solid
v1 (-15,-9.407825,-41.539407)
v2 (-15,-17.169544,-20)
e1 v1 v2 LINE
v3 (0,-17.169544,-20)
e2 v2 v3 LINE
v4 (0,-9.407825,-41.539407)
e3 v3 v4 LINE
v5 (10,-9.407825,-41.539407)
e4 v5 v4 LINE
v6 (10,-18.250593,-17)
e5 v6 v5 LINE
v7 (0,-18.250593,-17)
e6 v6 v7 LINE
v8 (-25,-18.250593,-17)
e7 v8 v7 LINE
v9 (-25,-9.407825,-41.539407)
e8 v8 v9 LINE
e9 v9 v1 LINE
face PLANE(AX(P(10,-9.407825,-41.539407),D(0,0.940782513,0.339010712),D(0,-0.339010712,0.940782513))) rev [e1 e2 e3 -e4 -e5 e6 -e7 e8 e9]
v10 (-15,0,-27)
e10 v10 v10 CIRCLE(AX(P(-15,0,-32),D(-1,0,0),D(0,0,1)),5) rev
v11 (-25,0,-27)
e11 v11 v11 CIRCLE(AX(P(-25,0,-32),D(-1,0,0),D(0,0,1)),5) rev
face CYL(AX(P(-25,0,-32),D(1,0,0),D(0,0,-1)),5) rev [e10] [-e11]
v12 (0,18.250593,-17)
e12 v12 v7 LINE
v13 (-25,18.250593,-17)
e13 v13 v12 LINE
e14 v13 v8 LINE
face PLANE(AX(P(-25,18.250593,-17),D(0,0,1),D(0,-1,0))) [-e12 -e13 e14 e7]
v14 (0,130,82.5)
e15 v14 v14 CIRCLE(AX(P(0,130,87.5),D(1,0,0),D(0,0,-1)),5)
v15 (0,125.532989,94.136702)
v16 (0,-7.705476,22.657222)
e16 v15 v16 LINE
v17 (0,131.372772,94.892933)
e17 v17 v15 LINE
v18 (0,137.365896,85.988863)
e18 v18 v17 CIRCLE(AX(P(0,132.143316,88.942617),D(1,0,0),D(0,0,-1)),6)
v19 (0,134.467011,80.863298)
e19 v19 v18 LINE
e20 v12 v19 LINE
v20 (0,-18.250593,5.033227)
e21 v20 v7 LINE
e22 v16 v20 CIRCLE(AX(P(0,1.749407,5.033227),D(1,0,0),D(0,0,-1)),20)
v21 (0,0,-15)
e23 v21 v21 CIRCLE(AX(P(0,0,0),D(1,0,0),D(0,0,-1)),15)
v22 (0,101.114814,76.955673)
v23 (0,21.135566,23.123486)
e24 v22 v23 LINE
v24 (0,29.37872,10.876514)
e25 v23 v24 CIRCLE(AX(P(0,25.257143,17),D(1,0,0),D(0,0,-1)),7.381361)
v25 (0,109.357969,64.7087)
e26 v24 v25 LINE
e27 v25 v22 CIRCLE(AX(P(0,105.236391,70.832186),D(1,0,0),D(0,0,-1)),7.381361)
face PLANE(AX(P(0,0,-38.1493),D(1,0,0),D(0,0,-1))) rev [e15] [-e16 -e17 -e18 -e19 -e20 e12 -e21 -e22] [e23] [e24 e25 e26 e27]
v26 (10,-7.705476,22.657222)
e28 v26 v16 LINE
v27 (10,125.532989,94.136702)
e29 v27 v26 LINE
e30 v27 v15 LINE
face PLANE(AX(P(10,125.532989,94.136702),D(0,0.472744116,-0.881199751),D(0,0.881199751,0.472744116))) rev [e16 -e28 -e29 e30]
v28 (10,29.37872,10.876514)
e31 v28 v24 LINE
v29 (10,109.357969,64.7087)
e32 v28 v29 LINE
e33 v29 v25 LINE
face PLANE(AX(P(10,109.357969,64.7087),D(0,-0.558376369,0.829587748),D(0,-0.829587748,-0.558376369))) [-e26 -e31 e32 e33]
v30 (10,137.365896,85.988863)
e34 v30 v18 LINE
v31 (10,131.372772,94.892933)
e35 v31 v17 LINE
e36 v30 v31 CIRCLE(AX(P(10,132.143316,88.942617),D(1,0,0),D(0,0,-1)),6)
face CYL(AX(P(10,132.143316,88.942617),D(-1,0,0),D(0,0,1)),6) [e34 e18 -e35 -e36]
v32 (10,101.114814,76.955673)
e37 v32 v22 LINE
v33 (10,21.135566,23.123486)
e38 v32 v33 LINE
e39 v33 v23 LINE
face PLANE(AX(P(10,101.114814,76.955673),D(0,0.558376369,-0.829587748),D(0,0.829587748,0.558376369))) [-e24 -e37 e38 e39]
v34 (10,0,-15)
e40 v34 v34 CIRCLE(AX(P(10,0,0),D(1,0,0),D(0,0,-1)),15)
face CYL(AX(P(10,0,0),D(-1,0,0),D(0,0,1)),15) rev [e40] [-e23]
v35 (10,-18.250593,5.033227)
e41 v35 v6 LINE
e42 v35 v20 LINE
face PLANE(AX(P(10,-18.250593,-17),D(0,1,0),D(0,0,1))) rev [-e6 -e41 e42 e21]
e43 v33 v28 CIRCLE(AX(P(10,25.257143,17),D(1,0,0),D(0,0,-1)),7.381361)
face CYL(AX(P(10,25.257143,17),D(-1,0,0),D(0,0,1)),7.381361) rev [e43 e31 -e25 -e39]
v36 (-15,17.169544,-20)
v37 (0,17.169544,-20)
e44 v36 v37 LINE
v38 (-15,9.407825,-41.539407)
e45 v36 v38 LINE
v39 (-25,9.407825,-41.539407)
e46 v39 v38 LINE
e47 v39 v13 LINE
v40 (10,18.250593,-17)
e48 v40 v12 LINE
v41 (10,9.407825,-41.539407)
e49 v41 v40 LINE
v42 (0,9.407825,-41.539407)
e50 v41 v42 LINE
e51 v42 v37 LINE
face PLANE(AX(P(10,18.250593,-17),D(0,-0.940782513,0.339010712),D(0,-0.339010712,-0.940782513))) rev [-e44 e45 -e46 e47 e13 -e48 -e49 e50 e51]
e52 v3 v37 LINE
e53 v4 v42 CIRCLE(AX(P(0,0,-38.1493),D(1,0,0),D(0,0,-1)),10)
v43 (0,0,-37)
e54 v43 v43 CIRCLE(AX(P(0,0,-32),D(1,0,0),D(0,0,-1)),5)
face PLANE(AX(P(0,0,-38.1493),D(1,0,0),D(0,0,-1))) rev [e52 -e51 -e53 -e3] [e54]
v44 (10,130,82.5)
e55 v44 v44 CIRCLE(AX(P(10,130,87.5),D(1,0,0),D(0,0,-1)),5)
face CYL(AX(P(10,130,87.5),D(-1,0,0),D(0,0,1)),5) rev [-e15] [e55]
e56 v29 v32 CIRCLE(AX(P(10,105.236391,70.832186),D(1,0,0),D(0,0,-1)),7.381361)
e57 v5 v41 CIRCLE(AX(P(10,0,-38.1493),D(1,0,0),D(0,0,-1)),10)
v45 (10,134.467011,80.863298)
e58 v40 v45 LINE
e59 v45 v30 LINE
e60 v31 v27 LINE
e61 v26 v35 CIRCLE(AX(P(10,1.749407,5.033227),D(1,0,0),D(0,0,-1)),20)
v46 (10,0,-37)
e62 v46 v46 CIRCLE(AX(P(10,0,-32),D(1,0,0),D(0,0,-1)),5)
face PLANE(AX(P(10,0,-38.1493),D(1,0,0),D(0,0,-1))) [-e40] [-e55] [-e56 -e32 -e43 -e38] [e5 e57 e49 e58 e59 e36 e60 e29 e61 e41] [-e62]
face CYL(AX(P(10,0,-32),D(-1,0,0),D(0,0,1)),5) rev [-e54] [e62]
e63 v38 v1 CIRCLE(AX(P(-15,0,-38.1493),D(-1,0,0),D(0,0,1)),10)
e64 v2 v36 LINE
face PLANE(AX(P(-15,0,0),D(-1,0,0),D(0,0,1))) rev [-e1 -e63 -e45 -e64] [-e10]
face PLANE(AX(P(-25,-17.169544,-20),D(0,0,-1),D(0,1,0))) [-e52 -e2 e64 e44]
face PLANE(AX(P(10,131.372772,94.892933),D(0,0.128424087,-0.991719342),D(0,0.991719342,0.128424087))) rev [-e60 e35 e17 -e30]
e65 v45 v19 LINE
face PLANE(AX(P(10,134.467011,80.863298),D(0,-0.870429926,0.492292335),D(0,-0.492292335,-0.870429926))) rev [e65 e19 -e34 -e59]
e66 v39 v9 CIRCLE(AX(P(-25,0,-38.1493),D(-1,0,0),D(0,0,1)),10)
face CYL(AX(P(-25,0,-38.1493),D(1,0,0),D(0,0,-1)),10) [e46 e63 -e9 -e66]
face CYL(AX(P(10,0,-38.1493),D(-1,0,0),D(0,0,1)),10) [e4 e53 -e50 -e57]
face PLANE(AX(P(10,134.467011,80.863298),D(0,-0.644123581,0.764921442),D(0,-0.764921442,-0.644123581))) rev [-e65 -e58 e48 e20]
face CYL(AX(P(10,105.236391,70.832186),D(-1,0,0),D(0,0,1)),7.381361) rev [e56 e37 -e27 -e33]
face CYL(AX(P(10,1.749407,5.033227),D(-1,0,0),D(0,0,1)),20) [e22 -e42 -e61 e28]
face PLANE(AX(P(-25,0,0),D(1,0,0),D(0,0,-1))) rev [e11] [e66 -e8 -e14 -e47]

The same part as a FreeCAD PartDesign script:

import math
import FreeCAD as App
import Part
import Sketcher

V = App.Vector
Q = App.Units.Quantity

doc = App.newDocument("Part")
params = doc.addObject("Spreadsheet::Sheet", "Params")
for row, (alias, value) in enumerate([
    ("sketch1_diameter", "10 mm"),
    ("sketch1_diameter2", "30 mm"),
    ("sketch1_radius", "10 mm"),
    ("sketch1_radius2", "6 mm"),
    ("sketch1_radius3", "20 mm"),
    ("pad1_length", "10 mm"),
    ("pad2_length", "25 mm"),
    ("sketch3_diameter", "10 mm"),
    ("sketch3_radius", "10 mm"),
    ("pad3_length", "10 mm"),
], start=1):
    params.set(f"A{row}", alias)
    params.set(f"B{row}", "=" + value)
    params.setAlias(f"B{row}", alias)

body = doc.addObject("PartDesign::Body", "Body")

# Sketch on YZ plane
sketch1 = doc.addObject("Sketcher::SketchObject", "Sketch")
body.addObject(sketch1)
sketch1.AttachmentSupport = (doc.YZ_Plane, [""])
sketch1.MapMode = "FlatFace"
sketch1.addGeometry(Part.LineSegment(V(-18, 5, 0), V(-18, -17, 0)), False)
sketch1.addGeometry(Part.LineSegment(V(-18, -17, 0), V(-9, -42, 0)), False)
sketch1.addGeometry(Part.ArcOfCircle(Part.Circle(V(0, -38, 0), V(0, 0, 1), 10), math.radians(-160), math.radians(-20)), False)
sketch1.addGeometry(Part.LineSegment(V(9, -42, 0), V(18, -17, 0)), False)
sketch1.addGeometry(Part.LineSegment(V(18, -17, 0), V(134, 81, 0)), False)
sketch1.addGeometry(Part.LineSegment(V(134, 81, 0), V(137, 86, 0)), False)
sketch1.addGeometry(Part.ArcOfCircle(Part.Circle(V(132, 89, 0), V(0, 0, 1), 6), math.radians(-29), math.radians(97)), False)
sketch1.addGeometry(Part.LineSegment(V(131, 95, 0), V(126, 94, 0)), False)
sketch1.addGeometry(Part.LineSegment(V(126, 94, 0), V(-8, 23, 0)), False)
sketch1.addGeometry(Part.ArcOfCircle(Part.Circle(V(2, 5, 0), V(0, 0, 1), 20), math.radians(118), math.radians(180)), False)
sketch1.addGeometry(Part.Circle(V(0, -32, 0), V(0, 0, 1), 5), False)
sketch1.addGeometry(Part.Circle(V(0, 0, 0), V(0, 0, 1), 15), False)
sketch1.addGeometry(Part.LineSegment(V(109, 65, 0), V(29, 11, 0)), False)
sketch1.addGeometry(Part.ArcOfCircle(Part.Circle(V(25, 17, 0), V(0, 0, 1), 7), math.radians(124), math.radians(304)), False)
sketch1.addGeometry(Part.LineSegment(V(21, 23, 0), V(101, 77, 0)), False)
sketch1.addGeometry(Part.ArcOfCircle(Part.Circle(V(105, 71, 0), V(0, 0, 1), 7), math.radians(-56), math.radians(124)), False)
sketch1.addGeometry(Part.Circle(V(130, 88, 0), V(0, 0, 1), 5), False)
sketch1.addConstraint(Sketcher.Constraint("Coincident", 0, 2, 1, 1))
sketch1.addConstraint(Sketcher.Constraint("Tangent", 1, 2, 2, 1))
sketch1.addConstraint(Sketcher.Constraint("Tangent", 2, 2, 3, 1))
sketch1.addConstraint(Sketcher.Constraint("Coincident", 3, 2, 4, 1))
sketch1.addConstraint(Sketcher.Constraint("Coincident", 4, 2, 5, 1))
sketch1.addConstraint(Sketcher.Constraint("Tangent", 5, 2, 6, 1))
sketch1.addConstraint(Sketcher.Constraint("Tangent", 6, 2, 7, 1))
sketch1.addConstraint(Sketcher.Constraint("Coincident", 7, 2, 8, 1))
sketch1.addConstraint(Sketcher.Constraint("Tangent", 8, 2, 9, 1))
sketch1.addConstraint(Sketcher.Constraint("Tangent", 9, 2, 0, 1))
sketch1.addConstraint(Sketcher.Constraint("Tangent", 12, 2, 13, 2))
sketch1.addConstraint(Sketcher.Constraint("Tangent", 13, 1, 14, 1))
sketch1.addConstraint(Sketcher.Constraint("Tangent", 14, 2, 15, 2))
sketch1.addConstraint(Sketcher.Constraint("Tangent", 15, 1, 12, 1))
sketch1.addConstraint(Sketcher.Constraint("Vertical", 0))
sketch1.addConstraint(Sketcher.Constraint("Coincident", 11, 3, -1, 1))
sketch1.addConstraint(Sketcher.Constraint("Equal", 13, 15))
sketch1.addConstraint(Sketcher.Constraint("Equal", 10, 16))
sketch1.addConstraint(Sketcher.Constraint("Symmetric", 1, 2, 2, 2, -2))
sketch1.addConstraint(Sketcher.Constraint("PointOnObject", 10, 3, -2))
sketch1.addConstraint(Sketcher.Constraint("Horizontal", 0, 2, 3, 2))
sketch1.addConstraint(Sketcher.Constraint("Equal", 5, 7))
sketch1.addConstraint(Sketcher.Constraint("Diameter", 10, 10.0))
sketch1.addConstraint(Sketcher.Constraint("Diameter", 11, 30.0))
sketch1.addConstraint(Sketcher.Constraint("Radius", 2, 10.0))
sketch1.addConstraint(Sketcher.Constraint("Radius", 6, 6.0))
sketch1.addConstraint(Sketcher.Constraint("Radius", 9, 20.0))
sketch1.addConstraint(Sketcher.Constraint("DistanceY", 10, 3, -1, 1, 32.0))
sketch1.addConstraint(Sketcher.Constraint("DistanceY", -1, 1, 13, 3, 17.0))
sketch1.addConstraint(Sketcher.Constraint("DistanceX", -1, 1, 16, 3, 130.0))
sketch1.addConstraint(Sketcher.Constraint("DistanceY", 0, 2, -1, 1, 17.0))
sketch1.addConstraint(Sketcher.Constraint("Angle", 4, Q("40.099996 deg")))
sketch1.addConstraint(Sketcher.Constraint("DistanceY", -1, 1, 16, 3, 87.5))
sketch1.addConstraint(Sketcher.Constraint("Radius", 13, 7.381361))
sketch1.addConstraint(Sketcher.Constraint("DistanceY", 2, 3, -1, 1, 38.1493))
sketch1.addConstraint(Sketcher.Constraint("DistanceY", -1, 1, 4, 2, 80.863298))
sketch1.addConstraint(Sketcher.Constraint("DistanceY", -1, 1, 7, 2, 94.136702))
sketch1.addConstraint(Sketcher.Constraint("DistanceY", -1, 1, 15, 1, 64.7087))
sketch1.addConstraint(Sketcher.Constraint("DistanceY", 0, 2, 0, 1, 22.033227))
sketch1.addConstraint(Sketcher.Constraint("DistanceX", -1, 1, 15, 3, 105.236391))
sketch1.addConstraint(Sketcher.Constraint("DistanceX", -1, 1, 4, 2, 134.467011))
sketch1.addConstraint(Sketcher.Constraint("DistanceX", -1, 1, 6, 2, 131.372772))
sketch1.addConstraint(Sketcher.Constraint("DistanceX", -1, 1, 7, 2, 125.532989))
sketch1.addConstraint(Sketcher.Constraint("DistanceX", -1, 1, 12, 2, 29.37872))
sketch1.setExpression("Constraints[22]", "Params.sketch1_diameter")
sketch1.setExpression("Constraints[23]", "Params.sketch1_diameter2")
sketch1.setExpression("Constraints[24]", "Params.sketch1_radius")
sketch1.setExpression("Constraints[25]", "Params.sketch1_radius2")
sketch1.setExpression("Constraints[26]", "Params.sketch1_radius3")
pad1 = doc.addObject("PartDesign::Pad", "Pad")
body.addObject(pad1)
pad1.Profile = sketch1
pad1.setExpression("Length", "Params.pad1_length")

# Sketch on YZ plane
sketch2 = doc.addObject("Sketcher::SketchObject", "Sketch001")
body.addObject(sketch2)
sketch2.AttachmentSupport = (doc.YZ_Plane, [""])
sketch2.MapMode = "FlatFace"
sketch2.addGeometry(Part.LineSegment(V(18.3, -17, 0), V(-18.3, -17, 0)), False)
sketch2.addGeometry(Part.LineSegment(V(-18.3, -17, 0), V(-17.2, -20, 0)), False)
sketch2.addGeometry(Part.LineSegment(V(-17.2, -20, 0), V(17.2, -20, 0)), False)
sketch2.addGeometry(Part.LineSegment(V(17.2, -20, 0), V(18.3, -17, 0)), False)
sketch2.addConstraint(Sketcher.Constraint("Coincident", 0, 2, 1, 1))
sketch2.addConstraint(Sketcher.Constraint("Coincident", 1, 2, 2, 1))
sketch2.addConstraint(Sketcher.Constraint("Coincident", 2, 2, 3, 1))
sketch2.addConstraint(Sketcher.Constraint("Coincident", 3, 2, 0, 1))
sketch2.addConstraint(Sketcher.Constraint("Horizontal", 0))
sketch2.addConstraint(Sketcher.Constraint("Horizontal", 2))
sketch2.addConstraint(Sketcher.Constraint("Equal", 1, 3))
sketch2.addConstraint(Sketcher.Constraint("DistanceY", 0, 2, -1, 1, 17.0))
sketch2.addConstraint(Sketcher.Constraint("DistanceY", 1, 2, -1, 1, 20.0))
sketch2.addConstraint(Sketcher.Constraint("DistanceX", 2, 1, 2, 2, 34.339089))
sketch2.addConstraint(Sketcher.Constraint("DistanceX", 0, 2, 0, 1, 36.501187))
sketch2.addConstraint(Sketcher.Constraint("DistanceX", 0, 2, -1, 1, 18.250593))
pad2 = doc.addObject("PartDesign::Pad", "Pad001")
body.addObject(pad2)
pad2.Profile = sketch2
pad2.setExpression("Length", "Params.pad2_length")
pad2.Reversed = True

# Sketch on YZ plane
sketch3 = doc.addObject("Sketcher::SketchObject", "Sketch002")
body.addObject(sketch3)
sketch3.AttachmentSupport = (doc.YZ_Plane, [""])
sketch3.MapMode = "FlatFace"
sketch3.AttachmentOffset = App.Placement(V(0, 0, -25), App.Rotation())
sketch3.addGeometry(Part.ArcOfCircle(Part.Circle(V(0, -38, 0), V(0, 0, 1), 10), math.radians(-160), math.radians(-20)), False)
sketch3.addGeometry(Part.LineSegment(V(-9, -42, 0), V(-17, -20, 0)), False)
sketch3.addGeometry(Part.LineSegment(V(-17, -20, 0), V(17, -20, 0)), False)
sketch3.addGeometry(Part.LineSegment(V(17, -20, 0), V(9, -42, 0)), False)
sketch3.addGeometry(Part.Circle(V(0, -32, 0), V(0, 0, 1), 5), False)
sketch3.addConstraint(Sketcher.Constraint("Tangent", 0, 1, 1, 1))
sketch3.addConstraint(Sketcher.Constraint("Coincident", 1, 2, 2, 1))
sketch3.addConstraint(Sketcher.Constraint("Coincident", 2, 2, 3, 1))
sketch3.addConstraint(Sketcher.Constraint("Tangent", 3, 2, 0, 2))
sketch3.addConstraint(Sketcher.Constraint("Horizontal", 2))
sketch3.addConstraint(Sketcher.Constraint("Symmetric", 0, 1, 3, 2, -2))
sketch3.addConstraint(Sketcher.Constraint("PointOnObject", 4, 3, -2))
sketch3.addConstraint(Sketcher.Constraint("Diameter", 4, 10.0))
sketch3.addConstraint(Sketcher.Constraint("Radius", 0, 10.0))
sketch3.addConstraint(Sketcher.Constraint("DistanceY", 4, 3, -1, 1, 32.0))
sketch3.addConstraint(Sketcher.Constraint("DistanceY", 1, 2, -1, 1, 20.0))
sketch3.addConstraint(Sketcher.Constraint("DistanceX", 2, 1, 2, 2, 34.339089))
sketch3.addConstraint(Sketcher.Constraint("DistanceY", 0, 3, -1, 1, 38.1493))
sketch3.setExpression("Constraints[7]", "Params.sketch3_diameter")
sketch3.setExpression("Constraints[8]", "Params.sketch3_radius")
pad3 = doc.addObject("PartDesign::Pad", "Pad002")
body.addObject(pad3)
pad3.Profile = sketch3
pad3.setExpression("Length", "Params.pad3_length")

doc.recompute()
